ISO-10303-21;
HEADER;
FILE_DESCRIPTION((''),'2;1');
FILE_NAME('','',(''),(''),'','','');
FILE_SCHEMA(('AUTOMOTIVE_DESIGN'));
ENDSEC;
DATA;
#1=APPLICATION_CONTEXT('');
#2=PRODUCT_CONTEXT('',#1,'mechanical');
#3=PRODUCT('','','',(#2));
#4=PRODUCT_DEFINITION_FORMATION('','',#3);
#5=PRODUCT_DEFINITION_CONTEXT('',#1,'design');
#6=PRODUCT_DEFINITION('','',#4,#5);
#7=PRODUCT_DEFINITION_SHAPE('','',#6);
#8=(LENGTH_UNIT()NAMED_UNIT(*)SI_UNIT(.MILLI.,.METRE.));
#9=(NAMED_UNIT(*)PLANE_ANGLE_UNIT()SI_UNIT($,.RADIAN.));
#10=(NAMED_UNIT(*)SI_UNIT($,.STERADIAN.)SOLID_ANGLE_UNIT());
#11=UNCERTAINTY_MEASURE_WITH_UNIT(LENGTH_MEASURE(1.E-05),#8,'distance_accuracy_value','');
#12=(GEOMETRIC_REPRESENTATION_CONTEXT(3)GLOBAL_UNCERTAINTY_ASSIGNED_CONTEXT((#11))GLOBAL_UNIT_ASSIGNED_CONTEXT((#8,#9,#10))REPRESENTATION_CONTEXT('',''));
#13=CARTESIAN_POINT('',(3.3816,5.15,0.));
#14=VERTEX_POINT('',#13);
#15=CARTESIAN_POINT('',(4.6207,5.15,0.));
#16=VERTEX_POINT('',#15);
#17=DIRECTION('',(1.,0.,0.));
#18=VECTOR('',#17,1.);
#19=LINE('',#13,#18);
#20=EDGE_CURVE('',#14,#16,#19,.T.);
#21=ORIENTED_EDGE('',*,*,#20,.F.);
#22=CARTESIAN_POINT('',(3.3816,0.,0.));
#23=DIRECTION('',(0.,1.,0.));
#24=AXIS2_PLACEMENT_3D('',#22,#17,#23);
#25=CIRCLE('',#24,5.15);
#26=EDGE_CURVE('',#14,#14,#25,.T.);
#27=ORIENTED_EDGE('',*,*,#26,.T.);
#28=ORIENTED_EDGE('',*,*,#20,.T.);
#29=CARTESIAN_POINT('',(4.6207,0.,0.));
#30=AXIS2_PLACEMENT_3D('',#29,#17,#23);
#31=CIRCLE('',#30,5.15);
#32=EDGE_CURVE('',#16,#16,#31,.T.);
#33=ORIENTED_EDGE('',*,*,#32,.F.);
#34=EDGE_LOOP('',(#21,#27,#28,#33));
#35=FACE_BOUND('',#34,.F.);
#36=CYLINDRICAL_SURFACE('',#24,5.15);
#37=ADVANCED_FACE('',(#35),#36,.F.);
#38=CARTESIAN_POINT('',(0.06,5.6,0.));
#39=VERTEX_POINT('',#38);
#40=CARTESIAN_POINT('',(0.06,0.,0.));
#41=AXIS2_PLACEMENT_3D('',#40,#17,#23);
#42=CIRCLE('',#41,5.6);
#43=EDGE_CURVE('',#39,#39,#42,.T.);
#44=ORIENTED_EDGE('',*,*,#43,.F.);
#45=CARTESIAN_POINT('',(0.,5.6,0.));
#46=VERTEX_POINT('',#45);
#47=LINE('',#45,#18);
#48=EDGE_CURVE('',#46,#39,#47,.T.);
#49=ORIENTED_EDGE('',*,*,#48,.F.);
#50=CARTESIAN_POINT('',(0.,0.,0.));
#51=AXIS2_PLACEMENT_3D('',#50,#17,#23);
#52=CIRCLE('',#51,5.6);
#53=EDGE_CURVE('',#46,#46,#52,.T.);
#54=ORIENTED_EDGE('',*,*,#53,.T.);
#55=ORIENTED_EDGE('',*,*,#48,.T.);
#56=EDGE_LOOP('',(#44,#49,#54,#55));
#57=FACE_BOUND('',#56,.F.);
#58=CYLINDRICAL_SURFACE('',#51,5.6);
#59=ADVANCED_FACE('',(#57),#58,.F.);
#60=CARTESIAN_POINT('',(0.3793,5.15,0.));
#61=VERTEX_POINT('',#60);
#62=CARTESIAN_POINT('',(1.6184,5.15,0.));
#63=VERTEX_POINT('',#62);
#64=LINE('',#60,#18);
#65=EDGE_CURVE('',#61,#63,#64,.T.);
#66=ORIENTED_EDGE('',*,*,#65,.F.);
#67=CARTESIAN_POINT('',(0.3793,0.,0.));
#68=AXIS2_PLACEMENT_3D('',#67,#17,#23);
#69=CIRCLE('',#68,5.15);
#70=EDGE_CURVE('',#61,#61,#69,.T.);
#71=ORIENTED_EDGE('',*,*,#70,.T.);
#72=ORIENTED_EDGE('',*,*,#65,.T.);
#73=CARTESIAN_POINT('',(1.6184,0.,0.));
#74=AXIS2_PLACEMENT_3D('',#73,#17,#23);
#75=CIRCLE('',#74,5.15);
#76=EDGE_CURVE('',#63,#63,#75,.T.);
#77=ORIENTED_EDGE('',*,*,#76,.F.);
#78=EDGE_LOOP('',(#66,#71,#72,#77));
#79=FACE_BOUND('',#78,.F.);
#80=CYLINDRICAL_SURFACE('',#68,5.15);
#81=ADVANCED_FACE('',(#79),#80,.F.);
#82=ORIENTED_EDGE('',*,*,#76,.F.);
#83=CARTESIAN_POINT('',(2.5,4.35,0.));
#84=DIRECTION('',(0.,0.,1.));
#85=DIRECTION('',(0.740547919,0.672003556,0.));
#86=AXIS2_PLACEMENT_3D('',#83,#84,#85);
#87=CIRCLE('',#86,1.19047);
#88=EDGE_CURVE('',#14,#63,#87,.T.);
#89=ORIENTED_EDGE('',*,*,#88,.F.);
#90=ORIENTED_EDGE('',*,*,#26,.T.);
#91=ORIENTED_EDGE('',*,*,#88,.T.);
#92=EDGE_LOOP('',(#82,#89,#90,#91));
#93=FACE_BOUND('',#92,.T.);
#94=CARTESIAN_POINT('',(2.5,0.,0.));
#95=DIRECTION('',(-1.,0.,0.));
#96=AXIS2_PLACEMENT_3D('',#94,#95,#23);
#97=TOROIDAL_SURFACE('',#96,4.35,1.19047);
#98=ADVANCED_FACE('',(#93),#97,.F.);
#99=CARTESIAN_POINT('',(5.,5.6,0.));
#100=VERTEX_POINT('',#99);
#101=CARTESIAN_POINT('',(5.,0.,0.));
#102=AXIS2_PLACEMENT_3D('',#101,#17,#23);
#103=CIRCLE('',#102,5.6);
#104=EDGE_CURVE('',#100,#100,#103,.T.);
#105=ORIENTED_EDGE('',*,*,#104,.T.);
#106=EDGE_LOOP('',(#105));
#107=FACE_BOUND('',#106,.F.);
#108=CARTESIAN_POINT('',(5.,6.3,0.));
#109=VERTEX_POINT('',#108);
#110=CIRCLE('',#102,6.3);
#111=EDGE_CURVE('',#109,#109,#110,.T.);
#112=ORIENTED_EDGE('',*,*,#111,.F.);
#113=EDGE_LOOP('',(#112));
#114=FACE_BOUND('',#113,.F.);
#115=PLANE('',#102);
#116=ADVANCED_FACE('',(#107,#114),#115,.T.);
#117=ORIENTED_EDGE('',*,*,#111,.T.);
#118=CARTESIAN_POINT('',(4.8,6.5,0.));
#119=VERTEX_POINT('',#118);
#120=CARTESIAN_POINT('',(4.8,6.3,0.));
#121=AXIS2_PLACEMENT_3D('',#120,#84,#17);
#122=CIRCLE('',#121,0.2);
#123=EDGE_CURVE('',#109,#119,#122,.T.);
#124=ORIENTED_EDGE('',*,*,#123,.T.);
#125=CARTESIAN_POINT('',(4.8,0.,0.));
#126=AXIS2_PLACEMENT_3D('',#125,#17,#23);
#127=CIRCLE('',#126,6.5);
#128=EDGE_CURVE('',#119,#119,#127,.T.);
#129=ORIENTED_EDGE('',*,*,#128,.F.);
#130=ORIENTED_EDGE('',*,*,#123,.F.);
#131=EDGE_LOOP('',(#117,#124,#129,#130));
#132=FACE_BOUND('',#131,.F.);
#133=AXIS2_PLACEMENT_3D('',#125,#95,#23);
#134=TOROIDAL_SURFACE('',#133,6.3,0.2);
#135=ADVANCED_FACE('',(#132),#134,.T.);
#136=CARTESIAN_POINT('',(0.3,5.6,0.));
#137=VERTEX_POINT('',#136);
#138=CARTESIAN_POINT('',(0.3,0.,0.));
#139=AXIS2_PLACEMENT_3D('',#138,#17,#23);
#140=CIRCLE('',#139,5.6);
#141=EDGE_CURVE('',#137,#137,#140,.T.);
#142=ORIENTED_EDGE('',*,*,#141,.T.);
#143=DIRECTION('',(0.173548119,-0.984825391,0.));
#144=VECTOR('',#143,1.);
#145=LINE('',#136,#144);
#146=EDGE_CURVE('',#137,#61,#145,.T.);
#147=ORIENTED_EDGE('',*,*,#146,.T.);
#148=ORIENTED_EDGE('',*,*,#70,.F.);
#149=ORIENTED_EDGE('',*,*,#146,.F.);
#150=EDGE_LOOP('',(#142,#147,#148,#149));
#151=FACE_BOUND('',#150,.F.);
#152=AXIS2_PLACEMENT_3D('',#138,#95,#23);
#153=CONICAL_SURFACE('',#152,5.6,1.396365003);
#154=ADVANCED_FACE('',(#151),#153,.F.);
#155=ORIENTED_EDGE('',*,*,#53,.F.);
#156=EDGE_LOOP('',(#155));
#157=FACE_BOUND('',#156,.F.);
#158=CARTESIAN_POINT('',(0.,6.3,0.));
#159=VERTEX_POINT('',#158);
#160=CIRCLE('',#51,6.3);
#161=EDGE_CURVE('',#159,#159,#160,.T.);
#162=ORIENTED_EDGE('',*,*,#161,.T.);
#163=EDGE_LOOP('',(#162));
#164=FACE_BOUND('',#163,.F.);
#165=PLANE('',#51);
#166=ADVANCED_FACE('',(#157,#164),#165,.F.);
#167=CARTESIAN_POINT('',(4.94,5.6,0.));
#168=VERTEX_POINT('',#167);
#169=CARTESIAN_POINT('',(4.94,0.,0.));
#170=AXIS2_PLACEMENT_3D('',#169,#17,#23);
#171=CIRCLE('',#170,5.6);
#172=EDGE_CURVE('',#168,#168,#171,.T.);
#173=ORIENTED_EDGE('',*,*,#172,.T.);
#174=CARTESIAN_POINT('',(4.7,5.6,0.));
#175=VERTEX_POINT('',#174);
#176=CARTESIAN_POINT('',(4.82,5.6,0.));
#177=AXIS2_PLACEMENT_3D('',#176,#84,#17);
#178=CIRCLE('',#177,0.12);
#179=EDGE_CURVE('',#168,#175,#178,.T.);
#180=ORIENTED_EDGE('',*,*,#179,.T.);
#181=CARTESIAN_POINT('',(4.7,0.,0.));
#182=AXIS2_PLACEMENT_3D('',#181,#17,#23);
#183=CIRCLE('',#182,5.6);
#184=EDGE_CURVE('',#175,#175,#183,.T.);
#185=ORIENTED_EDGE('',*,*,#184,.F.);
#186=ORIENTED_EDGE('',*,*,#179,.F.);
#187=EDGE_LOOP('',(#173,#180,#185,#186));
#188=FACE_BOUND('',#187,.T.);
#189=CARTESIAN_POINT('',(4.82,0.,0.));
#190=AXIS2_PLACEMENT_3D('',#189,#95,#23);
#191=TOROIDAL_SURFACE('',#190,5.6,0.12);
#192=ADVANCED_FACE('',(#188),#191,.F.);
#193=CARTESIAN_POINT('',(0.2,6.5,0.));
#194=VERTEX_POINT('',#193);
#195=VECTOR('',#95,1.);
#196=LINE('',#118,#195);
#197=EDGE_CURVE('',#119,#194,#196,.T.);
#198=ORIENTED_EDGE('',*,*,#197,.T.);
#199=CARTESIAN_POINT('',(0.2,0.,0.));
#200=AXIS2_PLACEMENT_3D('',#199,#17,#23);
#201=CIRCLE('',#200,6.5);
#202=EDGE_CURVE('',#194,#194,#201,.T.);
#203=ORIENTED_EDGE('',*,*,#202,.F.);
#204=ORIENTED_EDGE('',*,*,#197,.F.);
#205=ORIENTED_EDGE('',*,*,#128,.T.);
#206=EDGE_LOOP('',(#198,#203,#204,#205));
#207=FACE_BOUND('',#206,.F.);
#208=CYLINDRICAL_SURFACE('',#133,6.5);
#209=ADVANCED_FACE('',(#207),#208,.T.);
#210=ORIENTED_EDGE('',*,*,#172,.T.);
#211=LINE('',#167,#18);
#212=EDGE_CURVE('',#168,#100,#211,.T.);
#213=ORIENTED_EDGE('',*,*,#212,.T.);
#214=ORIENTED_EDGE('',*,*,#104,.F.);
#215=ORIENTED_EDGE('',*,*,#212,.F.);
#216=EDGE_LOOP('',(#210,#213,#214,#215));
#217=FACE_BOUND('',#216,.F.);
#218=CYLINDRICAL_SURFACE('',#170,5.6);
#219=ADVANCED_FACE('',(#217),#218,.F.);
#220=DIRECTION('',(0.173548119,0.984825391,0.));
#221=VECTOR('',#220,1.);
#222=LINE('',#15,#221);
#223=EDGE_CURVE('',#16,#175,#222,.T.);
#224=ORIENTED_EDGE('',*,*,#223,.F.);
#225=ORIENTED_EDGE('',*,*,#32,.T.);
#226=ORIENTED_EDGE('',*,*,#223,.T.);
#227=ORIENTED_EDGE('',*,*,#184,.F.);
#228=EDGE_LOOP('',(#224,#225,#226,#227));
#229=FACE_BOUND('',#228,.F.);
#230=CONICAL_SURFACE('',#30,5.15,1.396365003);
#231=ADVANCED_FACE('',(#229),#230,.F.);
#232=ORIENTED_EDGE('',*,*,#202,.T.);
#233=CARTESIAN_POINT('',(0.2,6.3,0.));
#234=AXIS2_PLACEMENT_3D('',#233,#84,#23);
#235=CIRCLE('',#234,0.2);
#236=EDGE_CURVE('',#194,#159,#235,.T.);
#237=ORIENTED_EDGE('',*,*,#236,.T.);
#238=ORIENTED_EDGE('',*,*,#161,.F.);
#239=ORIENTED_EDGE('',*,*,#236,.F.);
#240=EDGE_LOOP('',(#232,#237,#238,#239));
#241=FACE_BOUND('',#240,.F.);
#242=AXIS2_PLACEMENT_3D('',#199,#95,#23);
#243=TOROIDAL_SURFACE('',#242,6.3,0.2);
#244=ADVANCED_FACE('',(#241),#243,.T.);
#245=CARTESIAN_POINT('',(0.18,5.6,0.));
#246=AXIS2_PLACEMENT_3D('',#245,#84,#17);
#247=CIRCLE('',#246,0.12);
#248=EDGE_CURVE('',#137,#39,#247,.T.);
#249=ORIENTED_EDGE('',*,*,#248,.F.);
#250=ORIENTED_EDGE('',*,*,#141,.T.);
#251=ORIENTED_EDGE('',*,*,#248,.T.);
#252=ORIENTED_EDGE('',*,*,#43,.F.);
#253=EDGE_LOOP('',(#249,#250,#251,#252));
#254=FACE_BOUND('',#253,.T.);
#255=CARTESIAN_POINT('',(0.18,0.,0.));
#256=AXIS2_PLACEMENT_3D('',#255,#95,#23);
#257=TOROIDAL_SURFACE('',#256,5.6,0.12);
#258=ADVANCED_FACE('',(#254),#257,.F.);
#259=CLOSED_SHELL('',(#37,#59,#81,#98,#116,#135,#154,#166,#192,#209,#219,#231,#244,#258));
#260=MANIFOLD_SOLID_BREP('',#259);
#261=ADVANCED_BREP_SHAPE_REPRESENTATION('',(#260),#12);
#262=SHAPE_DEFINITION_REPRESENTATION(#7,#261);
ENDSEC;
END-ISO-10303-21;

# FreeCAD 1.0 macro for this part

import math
import FreeCAD as App
import Part
import Sketcher

V = App.Vector
Q = App.Units.Quantity

doc = App.newDocument("Part")
body = doc.addObject("PartDesign::Body", "Body")

# Sketch on XY plane
sketch1 = body.newObject("Sketcher::SketchObject", "Sketch")
sketch1.AttachmentSupport = (doc.getObject("XY_Plane"), [""])
sketch1.MapMode = "FlatFace"
sketch1.addGeometry([
    Part.LineSegment(V(0, 6.3, 0), V(0, 5.6, 0)),  # 0
    Part.LineSegment(V(0, 5.6, 0), V(0.06, 5.6, 0)),  # 1
    Part.ArcOfCircle(Part.Circle(V(0.18, 5.6, 0), V(0, 0, 1), 0.12), math.radians(0), math.radians(180)),  # 2
    Part.LineSegment(V(0.3, 5.6, 0), V(0.3793, 5.15, 0)),  # 3
    Part.LineSegment(V(0.3793, 5.15, 0), V(1.6184, 5.15, 0)),  # 4
    Part.ArcOfCircle(Part.Circle(V(2.5, 4.35, 0), V(0, 0, 1), 1.19047), math.radians(42.221889), math.radians(137.778111)),  # 5
    Part.LineSegment(V(3.3816, 5.15, 0), V(4.6207, 5.15, 0)),  # 6
    Part.LineSegment(V(4.6207, 5.15, 0), V(4.7, 5.6, 0)),  # 7
    Part.ArcOfCircle(Part.Circle(V(4.82, 5.6, 0), V(0, 0, 1), 0.12), math.radians(0), math.radians(180)),  # 8
    Part.LineSegment(V(4.94, 5.6, 0), V(5, 5.6, 0)),  # 9
    Part.LineSegment(V(5, 5.6, 0), V(5, 6.3, 0)),  # 10
    Part.ArcOfCircle(Part.Circle(V(4.8, 6.3, 0), V(0, 0, 1), 0.2), math.radians(0), math.radians(90)),  # 11
    Part.LineSegment(V(4.8, 6.5, 0), V(0.2, 6.5, 0)),  # 12
    Part.ArcOfCircle(Part.Circle(V(0.2, 6.3, 0), V(0, 0, 1), 0.2), math.radians(90), math.radians(180)),  # 13
], False)
sketch1.addConstraint([
    Sketcher.Constraint("Coincident", 0, 2, 1, 1),
    Sketcher.Constraint("Coincident", 1, 2, 2, 2),
    Sketcher.Constraint("Coincident", 2, 1, 3, 1),
    Sketcher.Constraint("Coincident", 3, 2, 4, 1),
    Sketcher.Constraint("Coincident", 4, 2, 5, 2),
    Sketcher.Constraint("Coincident", 5, 1, 6, 1),
    Sketcher.Constraint("Coincident", 6, 2, 7, 1),
    Sketcher.Constraint("Coincident", 7, 2, 8, 2),
    Sketcher.Constraint("Coincident", 8, 1, 9, 1),
    Sketcher.Constraint("Coincident", 9, 2, 10, 1),
    Sketcher.Constraint("Tangent", 10, 2, 11, 1),
    Sketcher.Constraint("Tangent", 11, 2, 12, 1),
    Sketcher.Constraint("Tangent", 12, 2, 13, 1),
    Sketcher.Constraint("Tangent", 13, 2, 0, 1),
    Sketcher.Constraint("Vertical", 0),
    Sketcher.Constraint("Horizontal", 1),
    Sketcher.Constraint("Horizontal", 4),
    Sketcher.Constraint("Horizontal", 6),
    Sketcher.Constraint("Horizontal", 9),
    Sketcher.Constraint("Vertical", 10),
    Sketcher.Constraint("Horizontal", 12),
    Sketcher.Constraint("Equal", 2, 8),
    Sketcher.Constraint("Equal", 11, 13),
    Sketcher.Constraint("PointOnObject", 0, 2, -2),
    Sketcher.Constraint("Horizontal", 2, 3, 8, 3),
    Sketcher.Constraint("Horizontal", 8, 3, 0, 2),
    Sketcher.Constraint("Horizontal", 1, 2, 2, 1),
    Sketcher.Constraint("Horizontal", 4, 2, 5, 1),
    Sketcher.Constraint("Horizontal", 2, 1, 7, 2),
    Sketcher.Constraint("Horizontal", 7, 2, 8, 1),
    Sketcher.Constraint("Equal", 4, 6),
    Sketcher.Constraint("Equal", 1, 9),
    Sketcher.Constraint("Equal", 3, 7),
    Sketcher.Constraint("Radius", 11, Q("0.2 mm")),
    Sketcher.Constraint("Radius", 2, Q("0.12 mm")),
    Sketcher.Constraint("DistanceX", 12, 2, 12, 1, Q("4.6 mm")),
    Sketcher.Constraint("DistanceY", 0, 2, 0, 1, Q("0.7 mm")),
    Sketcher.Constraint("DistanceX", 1, 1, 1, 2, Q("0.06 mm")),
    Sketcher.Constraint("DistanceY", -1, 1, 2, 3, Q("5.6 mm")),
    Sketcher.Constraint("Radius", 5, Q("1.1905 mm")),
    Sketcher.Constraint("DistanceY", 5, 3, 4, 2, Q("0.8 mm")),
    Sketcher.Constraint("DistanceX", 4, 1, 4, 2, Q("1.239 mm")),
    Sketcher.Constraint("DistanceY", -1, 1, 5, 3, Q("4.35 mm")),
])
revolution = body.newObject("PartDesign::Revolution", "Revolution")
revolution.Profile = sketch1
revolution.ReferenceAxis = (sketch1, ["H_Axis"])
revolution.Angle = 360

doc.recompute()
